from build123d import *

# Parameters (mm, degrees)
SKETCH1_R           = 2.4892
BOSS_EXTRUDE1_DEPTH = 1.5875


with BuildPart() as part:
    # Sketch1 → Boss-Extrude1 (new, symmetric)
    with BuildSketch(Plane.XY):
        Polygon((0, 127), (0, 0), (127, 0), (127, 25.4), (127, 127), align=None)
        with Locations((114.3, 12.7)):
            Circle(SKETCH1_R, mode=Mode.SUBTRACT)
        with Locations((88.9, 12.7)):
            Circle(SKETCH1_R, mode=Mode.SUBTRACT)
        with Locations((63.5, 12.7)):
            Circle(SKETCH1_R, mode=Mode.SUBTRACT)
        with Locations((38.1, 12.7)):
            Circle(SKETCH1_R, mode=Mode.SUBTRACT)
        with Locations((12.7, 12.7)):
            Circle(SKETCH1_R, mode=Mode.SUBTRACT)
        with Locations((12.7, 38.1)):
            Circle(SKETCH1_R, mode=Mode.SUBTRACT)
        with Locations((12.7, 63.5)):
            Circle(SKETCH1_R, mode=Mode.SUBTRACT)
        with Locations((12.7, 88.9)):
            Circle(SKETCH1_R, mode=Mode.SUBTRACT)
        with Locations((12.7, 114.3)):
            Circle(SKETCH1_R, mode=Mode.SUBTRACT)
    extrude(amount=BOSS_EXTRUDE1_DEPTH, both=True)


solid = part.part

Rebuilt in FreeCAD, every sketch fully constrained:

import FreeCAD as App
import Part
import Sketcher
from FreeCAD import Vector
Q = App.Units.Quantity

doc = App.newDocument("Part")
body = doc.addObject("PartDesign::Body", "Body")

sketch1 = body.newObject("Sketcher::SketchObject", "Sketch")
sketch1.AttachmentSupport = (doc.getObject("XY_Plane"), [""])
sketch1.MapMode = "FlatFace"
sketch1.addGeometry([
    Part.LineSegment(Vector(0, 127, 0), Vector(0, 0, 0)),
    Part.LineSegment(Vector(0, 0, 0), Vector(127, 0, 0)),
    Part.LineSegment(Vector(127, 0, 0), Vector(127, 127, 0)),
    Part.LineSegment(Vector(127, 127, 0), Vector(0, 127, 0)),
    Part.Circle(Vector(12.7, 12.7, 0), Vector(0, 0, 1), 2.5),
    Part.Circle(Vector(38.1, 12.7, 0), Vector(0, 0, 1), 2.5),
    Part.Circle(Vector(12.7, 38.1, 0), Vector(0, 0, 1), 2.5),
    Part.Circle(Vector(63.5, 12.7, 0), Vector(0, 0, 1), 2.5),
    Part.Circle(Vector(88.9, 12.7, 0), Vector(0, 0, 1), 2.5),
    Part.Circle(Vector(114.3, 12.7, 0), Vector(0, 0, 1), 2.5),
    Part.Circle(Vector(12.7, 63.5, 0), Vector(0, 0, 1), 2.5),
    Part.Circle(Vector(12.7, 88.9, 0), Vector(0, 0, 1), 2.5),
    Part.Circle(Vector(12.7, 114.3, 0), Vector(0, 0, 1), 2.5),
], False)
sketch1.addConstraint([
    Sketcher.Constraint("Coincident", 0, 2, 1, 1),
    Sketcher.Constraint("Coincident", 1, 2, 2, 1),
    Sketcher.Constraint("Coincident", 2, 2, 3, 1),
    Sketcher.Constraint("Coincident", 3, 2, 0, 1),
    Sketcher.Constraint("Vertical", 0),
    Sketcher.Constraint("Horizontal", 1),
    Sketcher.Constraint("Vertical", 2),
    Sketcher.Constraint("Horizontal", 3),
    Sketcher.Constraint("Coincident", 0, 2, -1, 1),
    Sketcher.Constraint("Equal", 4, 5),
    Sketcher.Constraint("Equal", 5, 6),
    Sketcher.Constraint("Equal", 6, 7),
    Sketcher.Constraint("Equal", 7, 8),
    Sketcher.Constraint("Equal", 8, 9),
    Sketcher.Constraint("Equal", 9, 10),
    Sketcher.Constraint("Equal", 10, 11),
    Sketcher.Constraint("Equal", 11, 12),
    Sketcher.Constraint("Horizontal", 4, 3, 5, 3),
    Sketcher.Constraint("Horizontal", 5, 3, 7, 3),
    Sketcher.Constraint("Horizontal", 7, 3, 8, 3),
    Sketcher.Constraint("Horizontal", 8, 3, 9, 3),
    Sketcher.Constraint("Vertical", 4, 3, 6, 3),
    Sketcher.Constraint("Vertical", 6, 3, 10, 3),
    Sketcher.Constraint("Vertical", 10, 3, 11, 3),
    Sketcher.Constraint("Vertical", 11, 3, 12, 3),
    Sketcher.Constraint("Equal", 3, 0),
    Sketcher.Constraint("DistanceX", 1, 1, 1, 2, Q("5 in")),
    Sketcher.Constraint("Diameter", 4, Q("0.196 in")),
    Sketcher.Constraint("DistanceX", 4, 3, 5, 3, Q("1 in")),
    Sketcher.Constraint("DistanceY", 4, 3, 6, 3, Q("1 in")),
    Sketcher.Constraint("DistanceX", 5, 3, 7, 3, Q("1 in")),
    Sketcher.Constraint("DistanceX", 7, 3, 8, 3, Q("1 in")),
    Sketcher.Constraint("DistanceX", 8, 3, 9, 3, Q("1 in")),
    Sketcher.Constraint("DistanceY", 6, 3, 10, 3, Q("1 in")),
    Sketcher.Constraint("DistanceY", 10, 3, 11, 3, Q("1 in")),
    Sketcher.Constraint("DistanceY", 11, 3, 12, 3, Q("1 in")),
    Sketcher.Constraint("DistanceX", -1, 1, 4, 3, Q("0.5 in")),
    Sketcher.Constraint("DistanceY", -1, 1, 4, 3, Q("0.5 in")),
])
pad1 = body.newObject("PartDesign::Pad", "Pad")
pad1.Profile = sketch1
pad1.Length = Q("0.125 in")
pad1.Midplane = True

doc.recompute()
